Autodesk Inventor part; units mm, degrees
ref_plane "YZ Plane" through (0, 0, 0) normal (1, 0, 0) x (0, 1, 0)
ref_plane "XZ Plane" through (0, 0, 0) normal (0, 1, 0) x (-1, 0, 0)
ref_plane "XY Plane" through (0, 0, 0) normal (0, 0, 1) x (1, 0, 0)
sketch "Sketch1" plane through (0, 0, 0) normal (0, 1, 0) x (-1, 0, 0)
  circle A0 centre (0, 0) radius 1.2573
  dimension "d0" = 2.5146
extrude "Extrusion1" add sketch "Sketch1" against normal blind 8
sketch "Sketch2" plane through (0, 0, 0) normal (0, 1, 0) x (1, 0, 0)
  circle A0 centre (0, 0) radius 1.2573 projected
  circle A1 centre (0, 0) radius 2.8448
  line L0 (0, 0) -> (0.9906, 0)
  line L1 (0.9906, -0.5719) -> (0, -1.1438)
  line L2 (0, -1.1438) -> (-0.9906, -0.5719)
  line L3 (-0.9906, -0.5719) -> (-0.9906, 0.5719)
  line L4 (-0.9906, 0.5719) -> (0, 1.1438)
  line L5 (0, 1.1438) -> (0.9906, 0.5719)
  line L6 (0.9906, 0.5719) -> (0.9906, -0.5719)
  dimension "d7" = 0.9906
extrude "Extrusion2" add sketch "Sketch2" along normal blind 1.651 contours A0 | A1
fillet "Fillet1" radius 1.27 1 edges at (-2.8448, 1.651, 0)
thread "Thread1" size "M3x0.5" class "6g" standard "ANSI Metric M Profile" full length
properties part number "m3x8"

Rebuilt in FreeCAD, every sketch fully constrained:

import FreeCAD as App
import Part
import Sketcher
Q = App.Units.Quantity


def edges_at(feature, points):
    """Names of the edges that pass closest to the given points."""
    edges = feature.Shape.Edges
    near = lambda p: min(range(len(edges)), key=lambda i: edges[i].distToShape(Part.Vertex(*p))[0])
    return sorted({f"Edge{near(p) + 1}" for p in points})


def add_polygon(sketch, points):
    """Adds a closed chain of lines whose ends are joined by coincident constraints."""
    first, n = sketch.GeometryCount, len(points)
    for a, b in zip(points, points[1:] + points[:1]):
        sketch.addGeometry(Part.LineSegment(App.Vector(*a, 0), App.Vector(*b, 0)), False)
    for i in range(n):
        sketch.addConstraint(Sketcher.Constraint("Coincident", first + i, 2, first + (i + 1) % n, 1))

doc = App.newDocument("Part")
body = doc.addObject("PartDesign::Body", "Body")

# Sketch on XZ plane
sketch1 = doc.addObject("Sketcher::SketchObject", "Sketch")
body.addObject(sketch1)
sketch1.AttachmentSupport = (doc.XZ_Plane, [""])
sketch1.MapMode = "FlatFace"
sketch1.addGeometry(Part.Circle(App.Vector(0, 0, 0), App.Vector(0, 0, 1), 1.3), False)
sketch1.addConstraint(Sketcher.Constraint("Coincident", 0, 3, -1, 1))
sketch1.addConstraint(Sketcher.Constraint("Diameter", 0, Q("0.099 in")))
pad1 = doc.addObject("PartDesign::Pad", "Pad")
body.addObject(pad1)
pad1.Profile = sketch1
pad1.Length = 8

# Sketch on XZ plane
sketch2 = doc.addObject("Sketcher::SketchObject", "Sketch001")
body.addObject(sketch2)
sketch2.AttachmentSupport = (doc.XZ_Plane, [""])
sketch2.MapMode = "FlatFace"
sketch2.addGeometry(Part.Circle(App.Vector(0, 0, 0), App.Vector(0, 0, 1), 2.8), False)  # 0
add_polygon(sketch2, [(1, 0.6), (0, 1.1), (-1, 0.6), (-1, -0.6), (0, -1.1), (1, -0.6)])  # lines 1-6
sketch2.addConstraint(Sketcher.Constraint("Vertical", 3))
sketch2.addConstraint(Sketcher.Constraint("Vertical", 6))
sketch2.addConstraint(Sketcher.Constraint("Coincident", 0, 3, -1, 1))
sketch2.addConstraint(Sketcher.Constraint("Symmetric", 1, 2, 4, 2, -1, 1))
sketch2.addConstraint(Sketcher.Constraint("Symmetric", 2, 2, 5, 2, -1, 1))
sketch2.addConstraint(Sketcher.Constraint("PointOnObject", 1, 2, -2))
sketch2.addConstraint(Sketcher.Constraint("Parallel", 1, 4))
sketch2.addConstraint(Sketcher.Constraint("Horizontal", 3, 2, 5, 2))
sketch2.addConstraint(Sketcher.Constraint("Diameter", 0, Q("0.224 in")))
sketch2.addConstraint(Sketcher.Constraint("DistanceX", 2, 2, -1, 1, Q("0.039 in")))
sketch2.addConstraint(Sketcher.Constraint("Angle", 1, Q("150.001 deg")))
sketch2.addConstraint(Sketcher.Constraint("DistanceY", 3, 2, 3, 1, Q("1.1438 mm")))
pad2 = doc.addObject("PartDesign::Pad", "Pad001")
body.addObject(pad2)
pad2.Profile = sketch2
pad2.Length = Q("0.065 in")
pad2.Reversed = True
doc.recompute()

fillet = doc.addObject("PartDesign::Fillet", "Fillet")
body.addObject(fillet)
fillet.Base = (pad2, edges_at(pad2, [(-2.845, 1.651, 0)]))
fillet.Radius = Q("0.05 in")

doc.recompute()
